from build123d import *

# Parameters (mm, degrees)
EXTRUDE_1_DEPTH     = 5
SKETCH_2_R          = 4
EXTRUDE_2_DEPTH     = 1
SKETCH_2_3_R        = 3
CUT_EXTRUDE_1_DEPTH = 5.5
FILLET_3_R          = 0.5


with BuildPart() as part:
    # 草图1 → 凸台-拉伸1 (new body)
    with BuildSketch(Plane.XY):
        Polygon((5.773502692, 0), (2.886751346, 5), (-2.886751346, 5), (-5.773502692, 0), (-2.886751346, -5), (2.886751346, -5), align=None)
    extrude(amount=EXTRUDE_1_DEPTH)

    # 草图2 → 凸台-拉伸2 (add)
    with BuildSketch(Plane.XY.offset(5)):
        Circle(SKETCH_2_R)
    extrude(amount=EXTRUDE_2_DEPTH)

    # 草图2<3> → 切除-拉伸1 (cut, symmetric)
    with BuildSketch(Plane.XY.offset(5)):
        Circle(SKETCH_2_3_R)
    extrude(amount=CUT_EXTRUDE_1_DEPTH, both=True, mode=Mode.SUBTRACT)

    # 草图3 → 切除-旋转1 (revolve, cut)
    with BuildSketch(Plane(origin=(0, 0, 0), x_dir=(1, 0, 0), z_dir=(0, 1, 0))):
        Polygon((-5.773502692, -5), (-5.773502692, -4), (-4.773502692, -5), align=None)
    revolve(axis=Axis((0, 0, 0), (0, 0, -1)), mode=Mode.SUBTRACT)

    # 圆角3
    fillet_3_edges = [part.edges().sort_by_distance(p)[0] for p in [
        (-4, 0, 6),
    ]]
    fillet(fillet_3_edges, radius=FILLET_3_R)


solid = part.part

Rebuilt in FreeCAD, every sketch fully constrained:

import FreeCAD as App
import Part
import Sketcher

V = App.Vector
Q = App.Units.Quantity


def edges_at(feature, points):
    """Names of the edges that pass closest to the given points."""
    edges = feature.Shape.Edges
    near = lambda p: min(range(len(edges)), key=lambda i: edges[i].distToShape(Part.Vertex(*p))[0])
    return sorted({f"Edge{near(p) + 1}" for p in points})

doc = App.newDocument("Part")
body = doc.addObject("PartDesign::Body", "Body")

sketch1 = doc.addObject("Sketcher::SketchObject", "Sketch")
body.addObject(sketch1)
sketch1.AttachmentSupport = (doc.XY_Plane, [""])
sketch1.MapMode = "FlatFace"
sketch1.addGeometry([
    Part.LineSegment(V(5.773503, 0, 0), V(2.886751, 5, 0)),
    Part.LineSegment(V(2.886751, 5, 0), V(-2.886751, 5, 0)),
    Part.LineSegment(V(-2.886751, 5, 0), V(-5.773503, 0, 0)),
    Part.LineSegment(V(-5.773503, 0, 0), V(-2.886751, -5, 0)),
    Part.LineSegment(V(-2.886751, -5, 0), V(2.886751, -5, 0)),
    Part.LineSegment(V(2.886751, -5, 0), V(5.773503, 0, 0)),
], False)
sketch1.addConstraint([
    Sketcher.Constraint("Coincident", 0, 2, 1, 1),
    Sketcher.Constraint("Coincident", 1, 2, 2, 1),
    Sketcher.Constraint("Coincident", 2, 2, 3, 1),
    Sketcher.Constraint("Coincident", 3, 2, 4, 1),
    Sketcher.Constraint("Coincident", 4, 2, 5, 1),
    Sketcher.Constraint("Coincident", 5, 2, 0, 1),
    Sketcher.Constraint("Horizontal", 1),
    Sketcher.Constraint("Horizontal", 4),
    Sketcher.Constraint("Symmetric", 0, 2, 3, 2, -1, 1),
    Sketcher.Constraint("Symmetric", 2, 2, 5, 2, -1, 1),
    Sketcher.Constraint("PointOnObject", 2, 2, -1),
    Sketcher.Constraint("Parallel", 2, 5),
    Sketcher.Constraint("Vertical", 1, 2, 3, 2),
    Sketcher.Constraint("Angle", 0, Q("120 deg")),
    Sketcher.Constraint("DistanceY", -1, 1, 0, 2, 5.0),
    Sketcher.Constraint("DistanceX", 1, 2, 1, 1, 5.773503),
])
pad1 = doc.addObject("PartDesign::Pad", "Pad")
body.addObject(pad1)
pad1.Profile = sketch1
pad1.Length = 5

sketch2 = doc.addObject("Sketcher::SketchObject", "Sketch001")
body.addObject(sketch2)
sketch2.AttachmentSupport = (doc.XY_Plane, [""])
sketch2.MapMode = "FlatFace"
sketch2.AttachmentOffset = App.Placement(V(0, 0, 5), App.Rotation())
sketch2.addGeometry(Part.Circle(V(0, 0, 0), V(0, 0, 1), 4), False)
sketch2.addConstraint([
    Sketcher.Constraint("Coincident", 0, 3, -1, 1),
    Sketcher.Constraint("Diameter", 0, 8.0),
])
pad2 = doc.addObject("PartDesign::Pad", "Pad001")
body.addObject(pad2)
pad2.Profile = sketch2
pad2.Length = 1

sketch3 = doc.addObject("Sketcher::SketchObject", "Sketch002")
body.addObject(sketch3)
sketch3.AttachmentSupport = (doc.XY_Plane, [""])
sketch3.MapMode = "FlatFace"
sketch3.AttachmentOffset = App.Placement(V(0, 0, 5), App.Rotation())
sketch3.addGeometry(Part.Circle(V(0, 0, 0), V(0, 0, 1), 3), False)
sketch3.addConstraint([
    Sketcher.Constraint("Coincident", 0, 3, -1, 1),
    Sketcher.Constraint("Diameter", 0, 6.0),
])
pocket1 = doc.addObject("PartDesign::Pocket", "Pocket")
body.addObject(pocket1)
pocket1.Profile = sketch3
pocket1.Length = 11
pocket1.Midplane = True

sketch4 = doc.addObject("Sketcher::SketchObject", "Sketch003")
body.addObject(sketch4)
sketch4.AttachmentSupport = (doc.XZ_Plane, [""])
sketch4.MapMode = "FlatFace"
sketch4.addGeometry([
    Part.LineSegment(V(-5.773503, 4, 0), V(-5.773503, 5, 0)),
    Part.LineSegment(V(-5.773503, 5, 0), V(-4.773503, 5, 0)),
    Part.LineSegment(V(-4.773503, 5, 0), V(-5.773503, 4, 0)),
], False)
sketch4.addConstraint([
    Sketcher.Constraint("Coincident", 0, 2, 1, 1),
    Sketcher.Constraint("Coincident", 1, 2, 2, 1),
    Sketcher.Constraint("Coincident", 2, 2, 0, 1),
    Sketcher.Constraint("Vertical", 0),
    Sketcher.Constraint("Horizontal", 1),
    Sketcher.Constraint("Equal", 1, 0),
    Sketcher.Constraint("DistanceX", 1, 1, 1, 2, 1.0),
    Sketcher.Constraint("DistanceY", -1, 1, 0, 2, 5.0),
    Sketcher.Constraint("DistanceX", 0, 2, -1, 1, 5.773503),
])
groove = doc.addObject("PartDesign::Groove", "Groove")
body.addObject(groove)
groove.Profile = sketch4
groove.ReferenceAxis = (sketch4, ["V_Axis"])
groove.Angle = 360
doc.recompute()

fillet = doc.addObject("PartDesign::Fillet", "Fillet")
body.addObject(fillet)
fillet.Base = (groove, edges_at(groove, [(-4, 0, 6)]))
fillet.Radius = 0.5

doc.recompute()
